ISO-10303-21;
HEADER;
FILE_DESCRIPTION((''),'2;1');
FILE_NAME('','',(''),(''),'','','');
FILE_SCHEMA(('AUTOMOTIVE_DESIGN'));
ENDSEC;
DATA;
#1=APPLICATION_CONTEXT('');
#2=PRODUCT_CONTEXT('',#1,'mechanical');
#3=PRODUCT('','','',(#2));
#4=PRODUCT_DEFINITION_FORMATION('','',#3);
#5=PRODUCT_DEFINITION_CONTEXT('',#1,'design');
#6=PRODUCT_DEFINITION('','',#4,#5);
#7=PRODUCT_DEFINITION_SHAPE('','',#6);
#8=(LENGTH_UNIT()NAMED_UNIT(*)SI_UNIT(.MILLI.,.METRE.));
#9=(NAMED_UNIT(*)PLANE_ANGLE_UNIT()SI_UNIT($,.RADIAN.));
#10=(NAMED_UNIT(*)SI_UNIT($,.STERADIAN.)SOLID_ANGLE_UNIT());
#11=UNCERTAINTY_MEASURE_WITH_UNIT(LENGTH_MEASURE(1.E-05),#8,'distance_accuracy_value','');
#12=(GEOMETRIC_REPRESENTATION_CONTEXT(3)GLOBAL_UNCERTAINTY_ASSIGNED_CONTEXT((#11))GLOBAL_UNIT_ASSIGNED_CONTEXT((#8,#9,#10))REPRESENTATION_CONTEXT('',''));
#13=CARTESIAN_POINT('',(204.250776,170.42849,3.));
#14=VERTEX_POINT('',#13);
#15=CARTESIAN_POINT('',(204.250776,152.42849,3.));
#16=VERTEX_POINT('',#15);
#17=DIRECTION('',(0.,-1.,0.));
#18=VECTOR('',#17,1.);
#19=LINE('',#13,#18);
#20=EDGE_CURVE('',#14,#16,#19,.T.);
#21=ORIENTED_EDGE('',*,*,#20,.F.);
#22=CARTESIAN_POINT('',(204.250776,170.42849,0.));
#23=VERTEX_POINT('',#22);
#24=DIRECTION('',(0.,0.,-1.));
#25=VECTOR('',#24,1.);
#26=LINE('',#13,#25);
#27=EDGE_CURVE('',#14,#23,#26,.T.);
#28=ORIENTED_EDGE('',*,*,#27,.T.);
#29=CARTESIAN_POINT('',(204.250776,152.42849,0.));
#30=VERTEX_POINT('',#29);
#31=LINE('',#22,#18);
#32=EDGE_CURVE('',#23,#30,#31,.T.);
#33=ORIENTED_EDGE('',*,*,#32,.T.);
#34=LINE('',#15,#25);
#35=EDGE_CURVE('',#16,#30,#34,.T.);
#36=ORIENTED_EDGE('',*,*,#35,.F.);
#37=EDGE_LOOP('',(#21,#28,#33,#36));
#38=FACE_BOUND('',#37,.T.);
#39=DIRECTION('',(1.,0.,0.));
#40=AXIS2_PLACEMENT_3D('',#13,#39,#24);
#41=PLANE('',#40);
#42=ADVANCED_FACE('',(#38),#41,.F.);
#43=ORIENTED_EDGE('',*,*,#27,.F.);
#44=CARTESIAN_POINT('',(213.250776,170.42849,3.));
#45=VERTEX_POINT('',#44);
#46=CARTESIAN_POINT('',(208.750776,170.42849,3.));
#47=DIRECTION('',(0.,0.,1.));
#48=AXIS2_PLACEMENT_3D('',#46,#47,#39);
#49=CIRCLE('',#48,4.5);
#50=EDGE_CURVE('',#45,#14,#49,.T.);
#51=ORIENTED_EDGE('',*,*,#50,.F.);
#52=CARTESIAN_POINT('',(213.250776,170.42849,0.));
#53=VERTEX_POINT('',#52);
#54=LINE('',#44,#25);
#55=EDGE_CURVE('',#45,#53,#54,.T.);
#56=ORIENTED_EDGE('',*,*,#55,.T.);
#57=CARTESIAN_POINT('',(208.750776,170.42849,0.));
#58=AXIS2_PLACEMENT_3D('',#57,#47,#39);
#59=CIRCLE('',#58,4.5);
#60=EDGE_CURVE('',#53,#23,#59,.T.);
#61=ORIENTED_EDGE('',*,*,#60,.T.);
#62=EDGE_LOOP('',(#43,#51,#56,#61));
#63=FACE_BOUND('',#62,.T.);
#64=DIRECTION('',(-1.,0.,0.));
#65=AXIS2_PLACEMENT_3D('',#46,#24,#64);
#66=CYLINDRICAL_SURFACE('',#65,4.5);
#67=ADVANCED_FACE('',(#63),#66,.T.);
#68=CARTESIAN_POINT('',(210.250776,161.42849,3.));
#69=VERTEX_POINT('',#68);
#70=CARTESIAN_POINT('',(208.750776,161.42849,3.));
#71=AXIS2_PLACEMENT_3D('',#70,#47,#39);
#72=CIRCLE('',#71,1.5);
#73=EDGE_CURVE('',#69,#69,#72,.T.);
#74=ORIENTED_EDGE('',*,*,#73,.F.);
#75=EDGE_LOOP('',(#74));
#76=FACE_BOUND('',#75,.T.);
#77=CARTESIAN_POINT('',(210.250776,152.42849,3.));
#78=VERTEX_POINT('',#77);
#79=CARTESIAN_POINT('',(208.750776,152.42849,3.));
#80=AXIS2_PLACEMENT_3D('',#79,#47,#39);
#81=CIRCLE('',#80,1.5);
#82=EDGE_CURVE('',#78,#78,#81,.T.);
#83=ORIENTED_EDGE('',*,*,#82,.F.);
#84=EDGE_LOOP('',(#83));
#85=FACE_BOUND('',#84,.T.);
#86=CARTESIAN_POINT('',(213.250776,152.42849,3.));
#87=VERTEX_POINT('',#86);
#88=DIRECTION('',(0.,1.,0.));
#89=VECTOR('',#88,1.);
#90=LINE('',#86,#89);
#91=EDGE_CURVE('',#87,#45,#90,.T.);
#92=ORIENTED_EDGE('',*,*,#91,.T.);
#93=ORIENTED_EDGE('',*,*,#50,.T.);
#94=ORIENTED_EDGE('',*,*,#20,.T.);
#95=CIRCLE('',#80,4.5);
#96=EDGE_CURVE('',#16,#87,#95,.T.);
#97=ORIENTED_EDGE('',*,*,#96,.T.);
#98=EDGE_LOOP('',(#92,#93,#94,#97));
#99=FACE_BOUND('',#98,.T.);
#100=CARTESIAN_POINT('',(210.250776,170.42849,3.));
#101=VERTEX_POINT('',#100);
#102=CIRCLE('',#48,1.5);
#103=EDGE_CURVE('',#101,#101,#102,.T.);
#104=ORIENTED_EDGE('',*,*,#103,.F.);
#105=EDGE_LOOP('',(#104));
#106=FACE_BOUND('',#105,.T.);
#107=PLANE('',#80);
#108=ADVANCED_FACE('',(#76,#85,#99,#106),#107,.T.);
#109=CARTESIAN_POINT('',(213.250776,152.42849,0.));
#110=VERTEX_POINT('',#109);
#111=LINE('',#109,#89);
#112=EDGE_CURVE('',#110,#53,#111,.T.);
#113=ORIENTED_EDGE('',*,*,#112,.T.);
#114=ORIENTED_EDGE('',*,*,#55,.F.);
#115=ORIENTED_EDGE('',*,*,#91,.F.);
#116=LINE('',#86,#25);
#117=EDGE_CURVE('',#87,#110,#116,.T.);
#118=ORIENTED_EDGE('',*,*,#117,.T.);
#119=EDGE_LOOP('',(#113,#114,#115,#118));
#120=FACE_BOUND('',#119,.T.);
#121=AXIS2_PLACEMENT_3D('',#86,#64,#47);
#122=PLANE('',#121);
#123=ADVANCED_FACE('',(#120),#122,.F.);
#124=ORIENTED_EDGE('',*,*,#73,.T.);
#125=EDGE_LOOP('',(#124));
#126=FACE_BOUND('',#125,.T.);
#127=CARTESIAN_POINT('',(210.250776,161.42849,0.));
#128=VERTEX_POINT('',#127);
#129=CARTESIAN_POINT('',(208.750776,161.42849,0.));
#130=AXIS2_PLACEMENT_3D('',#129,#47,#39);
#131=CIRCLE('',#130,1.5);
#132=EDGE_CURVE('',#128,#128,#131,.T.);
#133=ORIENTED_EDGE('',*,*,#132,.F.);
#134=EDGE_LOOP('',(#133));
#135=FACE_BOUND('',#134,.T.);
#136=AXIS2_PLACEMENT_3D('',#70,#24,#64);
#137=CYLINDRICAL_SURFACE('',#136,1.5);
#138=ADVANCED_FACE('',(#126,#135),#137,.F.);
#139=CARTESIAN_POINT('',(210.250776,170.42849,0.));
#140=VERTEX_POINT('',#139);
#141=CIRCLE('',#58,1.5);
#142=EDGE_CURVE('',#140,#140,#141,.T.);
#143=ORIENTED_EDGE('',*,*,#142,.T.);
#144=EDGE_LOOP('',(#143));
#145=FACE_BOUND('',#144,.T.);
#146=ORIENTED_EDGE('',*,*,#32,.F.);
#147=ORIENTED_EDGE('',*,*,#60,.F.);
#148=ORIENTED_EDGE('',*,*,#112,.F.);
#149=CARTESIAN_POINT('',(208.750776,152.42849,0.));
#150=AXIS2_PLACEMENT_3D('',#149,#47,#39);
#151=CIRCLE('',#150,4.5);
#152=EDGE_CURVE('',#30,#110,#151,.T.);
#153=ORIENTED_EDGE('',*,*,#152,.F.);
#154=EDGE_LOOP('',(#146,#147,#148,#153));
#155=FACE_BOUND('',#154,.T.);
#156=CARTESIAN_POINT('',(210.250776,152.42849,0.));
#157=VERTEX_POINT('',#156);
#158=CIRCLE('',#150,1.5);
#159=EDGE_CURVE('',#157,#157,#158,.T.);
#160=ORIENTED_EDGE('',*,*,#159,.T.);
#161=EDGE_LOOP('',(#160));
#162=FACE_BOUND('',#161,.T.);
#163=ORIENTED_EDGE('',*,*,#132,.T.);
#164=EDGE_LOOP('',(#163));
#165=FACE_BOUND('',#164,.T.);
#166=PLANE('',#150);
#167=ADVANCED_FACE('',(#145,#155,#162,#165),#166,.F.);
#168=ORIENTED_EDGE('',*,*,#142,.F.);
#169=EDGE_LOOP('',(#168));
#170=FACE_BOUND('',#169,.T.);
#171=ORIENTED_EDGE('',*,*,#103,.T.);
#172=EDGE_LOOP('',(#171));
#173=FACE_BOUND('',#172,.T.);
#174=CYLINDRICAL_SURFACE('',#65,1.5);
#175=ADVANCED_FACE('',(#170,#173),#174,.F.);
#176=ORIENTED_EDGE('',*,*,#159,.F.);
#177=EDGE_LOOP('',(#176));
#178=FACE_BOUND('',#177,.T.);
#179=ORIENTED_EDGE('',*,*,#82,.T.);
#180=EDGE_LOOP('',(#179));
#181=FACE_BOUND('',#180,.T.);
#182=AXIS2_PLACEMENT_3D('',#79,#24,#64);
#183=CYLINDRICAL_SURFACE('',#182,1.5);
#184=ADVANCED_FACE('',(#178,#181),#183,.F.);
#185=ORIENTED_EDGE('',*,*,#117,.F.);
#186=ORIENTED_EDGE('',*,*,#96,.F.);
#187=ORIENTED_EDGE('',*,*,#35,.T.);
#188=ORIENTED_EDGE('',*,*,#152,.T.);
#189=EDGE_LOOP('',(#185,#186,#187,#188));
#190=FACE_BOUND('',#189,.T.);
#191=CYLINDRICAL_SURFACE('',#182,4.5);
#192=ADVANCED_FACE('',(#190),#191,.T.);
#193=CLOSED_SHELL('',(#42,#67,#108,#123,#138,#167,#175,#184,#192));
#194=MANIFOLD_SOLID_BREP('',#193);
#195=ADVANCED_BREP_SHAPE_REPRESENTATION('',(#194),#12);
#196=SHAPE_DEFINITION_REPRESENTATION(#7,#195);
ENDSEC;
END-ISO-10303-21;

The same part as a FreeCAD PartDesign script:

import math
import FreeCAD as App
import Part
import Sketcher

V = App.Vector

doc = App.newDocument("Part")
body = doc.addObject("PartDesign::Body", "Body")

sketch1 = body.newObject("Sketcher::SketchObject", "Sketch")
sketch1.AttachmentSupport = (doc.getObject("XY_Plane"), [""])
sketch1.MapMode = "FlatFace"
sketch1.addGeometry([
    Part.LineSegment(V(213.250776, 152.42849, 0), V(213.250776, 170.42849, 0)),
    Part.ArcOfCircle(Part.Circle(V(208.750776, 170.42849, 0), V(0, 0, 1), 4.5), math.radians(0), math.radians(180)),
    Part.LineSegment(V(204.250776, 170.42849, 0), V(204.250776, 152.42849, 0)),
    Part.ArcOfCircle(Part.Circle(V(208.750776, 152.42849, 0), V(0, 0, 1), 4.5), math.radians(180), math.radians(360)),
    Part.Circle(V(208.750776, 152.42849, 0), V(0, 0, 1), 1.5),
    Part.Circle(V(208.750776, 161.42849, 0), V(0, 0, 1), 1.5),
    Part.Circle(V(208.750776, 170.42849, 0), V(0, 0, 1), 1.5),
], False)
sketch1.addConstraint([
    Sketcher.Constraint("Tangent", 0, 2, 1, 1),
    Sketcher.Constraint("Tangent", 1, 2, 2, 1),
    Sketcher.Constraint("Tangent", 2, 2, 3, 1),
    Sketcher.Constraint("Tangent", 3, 2, 0, 1),
    Sketcher.Constraint("Vertical", 0),
    Sketcher.Constraint("Vertical", 2),
    Sketcher.Constraint("Coincident", 4, 3, 3, 3),
    Sketcher.Constraint("Coincident", 6, 3, 1, 3),
    Sketcher.Constraint("Equal", 4, 5),
    Sketcher.Constraint("Equal", 5, 6),
    Sketcher.Constraint("Vertical", 4, 3, 5, 3),
    Sketcher.Constraint("Diameter", 4, 3.0),
    Sketcher.Constraint("Radius", 1, 4.5),
    Sketcher.Constraint("DistanceY", 0, 1, 0, 2, 18.0),
    Sketcher.Constraint("DistanceY", 5, 3, 1, 3, 9.0),
    Sketcher.Constraint("DistanceY", -1, 1, 1, 3, 170.42849),
    Sketcher.Constraint("DistanceX", -1, 1, 1, 3, 208.750776),
])
pad1 = body.newObject("PartDesign::Pad", "Pad")
pad1.Profile = sketch1
pad1.Length = 3

doc.recompute()
